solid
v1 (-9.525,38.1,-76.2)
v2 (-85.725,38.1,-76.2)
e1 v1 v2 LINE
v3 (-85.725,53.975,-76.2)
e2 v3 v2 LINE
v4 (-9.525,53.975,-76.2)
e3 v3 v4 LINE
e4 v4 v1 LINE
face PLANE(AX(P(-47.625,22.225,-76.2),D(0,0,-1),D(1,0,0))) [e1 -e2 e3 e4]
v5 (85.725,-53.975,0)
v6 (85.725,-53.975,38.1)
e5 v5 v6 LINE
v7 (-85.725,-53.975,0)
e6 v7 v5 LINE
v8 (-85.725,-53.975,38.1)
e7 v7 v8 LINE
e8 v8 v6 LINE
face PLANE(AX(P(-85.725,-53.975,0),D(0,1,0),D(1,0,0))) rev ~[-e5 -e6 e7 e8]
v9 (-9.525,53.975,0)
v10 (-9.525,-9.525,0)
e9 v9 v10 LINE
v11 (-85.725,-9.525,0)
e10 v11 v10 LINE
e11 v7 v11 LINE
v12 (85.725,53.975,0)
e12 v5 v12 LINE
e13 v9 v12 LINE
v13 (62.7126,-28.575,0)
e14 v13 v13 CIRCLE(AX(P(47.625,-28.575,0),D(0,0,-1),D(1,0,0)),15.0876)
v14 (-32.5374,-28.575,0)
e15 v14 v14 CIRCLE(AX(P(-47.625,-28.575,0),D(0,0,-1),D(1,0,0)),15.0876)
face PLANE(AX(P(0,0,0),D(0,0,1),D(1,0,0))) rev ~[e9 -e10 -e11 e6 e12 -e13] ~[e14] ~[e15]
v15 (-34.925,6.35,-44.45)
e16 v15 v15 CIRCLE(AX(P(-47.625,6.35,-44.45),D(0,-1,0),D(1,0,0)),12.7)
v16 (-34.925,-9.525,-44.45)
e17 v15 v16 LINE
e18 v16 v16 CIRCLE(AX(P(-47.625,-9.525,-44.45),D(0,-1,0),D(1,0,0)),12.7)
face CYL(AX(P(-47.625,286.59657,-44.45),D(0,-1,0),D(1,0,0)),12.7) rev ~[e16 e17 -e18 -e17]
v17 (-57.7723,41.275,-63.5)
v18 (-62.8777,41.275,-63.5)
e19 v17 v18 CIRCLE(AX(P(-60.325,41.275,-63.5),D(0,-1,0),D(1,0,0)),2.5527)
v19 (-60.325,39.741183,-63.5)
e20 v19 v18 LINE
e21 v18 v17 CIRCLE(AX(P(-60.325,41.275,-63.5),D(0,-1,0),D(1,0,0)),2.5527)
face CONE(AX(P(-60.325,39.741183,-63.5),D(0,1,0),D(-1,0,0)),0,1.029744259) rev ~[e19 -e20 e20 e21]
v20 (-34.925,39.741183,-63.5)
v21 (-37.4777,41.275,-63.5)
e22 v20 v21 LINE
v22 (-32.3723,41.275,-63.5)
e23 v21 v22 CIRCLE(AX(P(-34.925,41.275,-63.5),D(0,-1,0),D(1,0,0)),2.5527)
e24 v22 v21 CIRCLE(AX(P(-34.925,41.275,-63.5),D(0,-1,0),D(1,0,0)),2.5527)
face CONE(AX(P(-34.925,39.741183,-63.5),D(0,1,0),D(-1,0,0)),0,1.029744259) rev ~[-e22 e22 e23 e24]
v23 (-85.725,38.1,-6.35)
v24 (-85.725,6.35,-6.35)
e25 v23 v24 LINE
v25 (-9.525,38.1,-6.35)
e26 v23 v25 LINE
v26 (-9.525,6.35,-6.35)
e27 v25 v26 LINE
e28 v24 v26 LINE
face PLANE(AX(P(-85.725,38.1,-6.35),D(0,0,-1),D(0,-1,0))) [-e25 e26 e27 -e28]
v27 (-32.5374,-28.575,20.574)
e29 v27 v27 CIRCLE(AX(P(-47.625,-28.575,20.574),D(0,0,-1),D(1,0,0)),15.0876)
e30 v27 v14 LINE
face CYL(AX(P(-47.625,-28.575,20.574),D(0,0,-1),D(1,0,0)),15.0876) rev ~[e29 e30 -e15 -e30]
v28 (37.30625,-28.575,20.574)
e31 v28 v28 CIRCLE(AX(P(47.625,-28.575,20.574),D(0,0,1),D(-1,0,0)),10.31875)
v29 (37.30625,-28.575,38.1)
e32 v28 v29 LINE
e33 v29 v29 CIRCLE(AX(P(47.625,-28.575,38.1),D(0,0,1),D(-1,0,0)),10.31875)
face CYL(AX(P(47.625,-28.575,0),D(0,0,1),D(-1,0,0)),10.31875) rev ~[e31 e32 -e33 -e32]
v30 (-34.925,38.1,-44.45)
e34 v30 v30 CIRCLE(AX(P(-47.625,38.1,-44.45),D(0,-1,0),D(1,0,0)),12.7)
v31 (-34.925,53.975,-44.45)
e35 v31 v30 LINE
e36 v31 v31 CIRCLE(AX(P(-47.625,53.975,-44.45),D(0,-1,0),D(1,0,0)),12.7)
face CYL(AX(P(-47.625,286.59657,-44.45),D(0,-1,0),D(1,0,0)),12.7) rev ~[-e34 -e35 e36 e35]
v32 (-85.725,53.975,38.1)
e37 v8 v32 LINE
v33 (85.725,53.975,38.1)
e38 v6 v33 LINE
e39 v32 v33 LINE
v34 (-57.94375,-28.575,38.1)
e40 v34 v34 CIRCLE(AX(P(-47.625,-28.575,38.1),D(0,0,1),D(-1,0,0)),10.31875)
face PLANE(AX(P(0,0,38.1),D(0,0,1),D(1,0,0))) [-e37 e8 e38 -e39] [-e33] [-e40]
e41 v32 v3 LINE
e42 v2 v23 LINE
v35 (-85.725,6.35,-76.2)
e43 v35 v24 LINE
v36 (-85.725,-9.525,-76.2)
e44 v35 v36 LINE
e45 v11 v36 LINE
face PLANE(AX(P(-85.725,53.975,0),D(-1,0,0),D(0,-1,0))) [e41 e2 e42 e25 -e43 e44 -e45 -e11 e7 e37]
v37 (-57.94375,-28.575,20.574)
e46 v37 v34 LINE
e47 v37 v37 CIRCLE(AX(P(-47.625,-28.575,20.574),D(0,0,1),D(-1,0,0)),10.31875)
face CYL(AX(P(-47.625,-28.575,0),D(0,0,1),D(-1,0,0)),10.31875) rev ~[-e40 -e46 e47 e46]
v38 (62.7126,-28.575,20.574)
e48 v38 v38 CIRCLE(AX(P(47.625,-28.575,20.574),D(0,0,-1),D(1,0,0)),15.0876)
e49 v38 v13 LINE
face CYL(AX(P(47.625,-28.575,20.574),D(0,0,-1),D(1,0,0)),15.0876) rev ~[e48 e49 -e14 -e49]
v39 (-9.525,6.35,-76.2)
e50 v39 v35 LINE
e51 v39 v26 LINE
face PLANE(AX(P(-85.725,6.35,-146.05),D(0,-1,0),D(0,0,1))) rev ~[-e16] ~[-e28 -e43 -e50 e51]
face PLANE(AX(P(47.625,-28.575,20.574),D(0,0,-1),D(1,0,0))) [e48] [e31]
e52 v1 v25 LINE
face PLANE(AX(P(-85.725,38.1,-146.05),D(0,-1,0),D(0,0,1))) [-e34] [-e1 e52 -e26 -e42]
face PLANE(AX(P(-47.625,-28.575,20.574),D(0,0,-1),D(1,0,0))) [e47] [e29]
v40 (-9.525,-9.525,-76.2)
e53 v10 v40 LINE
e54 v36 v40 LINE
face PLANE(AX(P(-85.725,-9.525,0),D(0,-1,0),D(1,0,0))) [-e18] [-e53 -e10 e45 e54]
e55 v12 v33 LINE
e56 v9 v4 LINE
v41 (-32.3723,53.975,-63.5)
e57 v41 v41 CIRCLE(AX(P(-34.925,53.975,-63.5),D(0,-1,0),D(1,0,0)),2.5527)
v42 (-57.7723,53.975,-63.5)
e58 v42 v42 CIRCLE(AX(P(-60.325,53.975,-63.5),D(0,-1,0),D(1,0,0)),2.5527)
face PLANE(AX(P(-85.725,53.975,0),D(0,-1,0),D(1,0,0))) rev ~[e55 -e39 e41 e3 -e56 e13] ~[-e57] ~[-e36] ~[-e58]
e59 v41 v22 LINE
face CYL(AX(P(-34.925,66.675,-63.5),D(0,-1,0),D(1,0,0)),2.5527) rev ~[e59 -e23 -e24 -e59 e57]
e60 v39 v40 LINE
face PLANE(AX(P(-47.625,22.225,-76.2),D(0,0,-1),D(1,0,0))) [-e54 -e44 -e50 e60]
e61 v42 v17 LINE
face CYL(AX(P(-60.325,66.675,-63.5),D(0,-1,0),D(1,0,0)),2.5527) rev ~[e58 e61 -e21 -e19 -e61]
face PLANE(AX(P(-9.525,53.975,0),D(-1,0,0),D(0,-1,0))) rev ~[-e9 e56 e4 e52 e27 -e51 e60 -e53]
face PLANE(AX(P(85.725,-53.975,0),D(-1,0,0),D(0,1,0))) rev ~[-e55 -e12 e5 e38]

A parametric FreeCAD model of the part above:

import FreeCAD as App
import Part
import Sketcher
Q = App.Units.Quantity


def add_polygon(sketch, points):
    """Adds a closed chain of lines whose ends are joined by coincident constraints."""
    first, n = sketch.GeometryCount, len(points)
    for a, b in zip(points, points[1:] + points[:1]):
        sketch.addGeometry(Part.LineSegment(App.Vector(*a, 0), App.Vector(*b, 0)), False)
    for i in range(n):
        sketch.addConstraint(Sketcher.Constraint("Coincident", first + i, 2, first + (i + 1) % n, 1))

doc = App.newDocument("Part")
body = doc.addObject("PartDesign::Body", "Body")

sketch1 = body.newObject("Sketcher::SketchObject", "Sketch")
sketch1.AttachmentSupport = (doc.getObject("XY_Plane"), [""])
sketch1.MapMode = "FlatFace"
add_polygon(sketch1, [(-85.725, 53.975), (-85.725, -53.975), (85.725, -53.975), (85.725, 53.975)])
sketch1.addConstraint([
    Sketcher.Constraint("Vertical", 0),
    Sketcher.Constraint("Horizontal", 1),
    Sketcher.Constraint("Vertical", 2),
    Sketcher.Constraint("Horizontal", 3),
    Sketcher.Constraint("Symmetric", 0, 2, 2, 2, -1, 1),
    Sketcher.Constraint("DistanceX", 1, 1, 1, 2, Q("6.75 in")),
    Sketcher.Constraint("DistanceY", 0, 2, 0, 1, Q("4.25 in")),
])
pad1 = body.newObject("PartDesign::Pad", "Pad")
pad1.Profile = sketch1
pad1.Length = Q("1.5 in")

sketch2 = body.newObject("Sketcher::SketchObject", "Sketch001")
sketch2.AttachmentSupport = (doc.getObject("XY_Plane"), [""])
sketch2.MapMode = "FlatFace"
sketch2.addGeometry([
    Part.Circle(App.Vector(-47.625, -28.575, 0), App.Vector(0, 0, 1), 10.31875),
    Part.Circle(App.Vector(47.625, -28.575, 0), App.Vector(0, 0, 1), 10.31875),
], False)
sketch2.addConstraint([
    Sketcher.Constraint("Equal", 0, 1),
    Sketcher.Constraint("Symmetric", 0, 3, 1, 3, -2),
    Sketcher.Constraint("Diameter", 0, Q("0.8125 in")),
    Sketcher.Constraint("DistanceX", 0, 3, 1, 3, Q("3.75 in")),
    Sketcher.Constraint("DistanceY", 0, 3, -1, 1, Q("1.125 in")),
])
doc.recompute()
hole = body.newObject("PartDesign::Hole", "Hole")
hole.Profile = sketch2
hole.ThreadType = "None"
hole.Diameter = Q("0.8125 in")
hole.DepthType = "ThroughAll"
hole.HoleCutType = "Counterbore"
hole.HoleCutDiameter = Q("1.188 in")
hole.HoleCutDepth = Q("0.81 in")
hole.Reversed = True

sketch3 = body.newObject("Sketcher::SketchObject", "Sketch002")
sketch3.AttachmentSupport = (doc.getObject("XY_Plane"), [""])
sketch3.MapMode = "FlatFace"
add_polygon(sketch3, [(-85.725, -9.525), (-85.725, 53.975), (-9.525, 53.975), (-9.525, -9.525)])
sketch3.addConstraint([
    Sketcher.Constraint("Vertical", 0),
    Sketcher.Constraint("Horizontal", 1),
    Sketcher.Constraint("Vertical", 2),
    Sketcher.Constraint("Horizontal", 3),
    Sketcher.Constraint("DistanceX", 1, 1, 1, 2, Q("3 in")),
    Sketcher.Constraint("DistanceY", 0, 1, 0, 2, Q("2.5 in")),
    Sketcher.Constraint("DistanceX", 0, 2, -1, 1, Q("3.375 in")),
    Sketcher.Constraint("DistanceY", -1, 1, 0, 2, Q("2.125 in")),
])
pad2 = body.newObject("PartDesign::Pad", "Pad001")
pad2.Profile = sketch3
pad2.Length = Q("3 in")
pad2.Reversed = True

sketch4 = body.newObject("Sketcher::SketchObject", "Sketch003")
sketch4.AttachmentSupport = (doc.getObject("YZ_Plane"), [""])
sketch4.MapMode = "FlatFace"
sketch4.AttachmentOffset = App.Placement(App.Vector(0, 0, -3.375 * 25.4), App.Rotation())
add_polygon(sketch4, [(38.1, -6.35), (38.1, -146.05), (6.35, -146.05), (6.35, -6.35)])
sketch4.addConstraint([
    Sketcher.Constraint("Vertical", 0),
    Sketcher.Constraint("Horizontal", 1),
    Sketcher.Constraint("Vertical", 2),
    Sketcher.Constraint("Horizontal", 3),
    Sketcher.Constraint("DistanceY", 0, 2, 0, 1, Q("5.5 in")),
    Sketcher.Constraint("DistanceX", 1, 2, 1, 1, Q("1.25 in")),
    Sketcher.Constraint("DistanceX", -1, 1, 0, 2, Q("1.5 in")),
    Sketcher.Constraint("DistanceY", 0, 2, -1, 1, Q("5.75 in")),
])
pocket1 = body.newObject("PartDesign::Pocket", "Pocket")
pocket1.Profile = sketch4
pocket1.Type = "ThroughAll"
pocket1.Reversed = True

sketch5 = body.newObject("Sketcher::SketchObject", "Sketch004")
sketch5.AttachmentSupport = (doc.getObject("XZ_Plane"), [""])
sketch5.MapMode = "FlatFace"
sketch5.AttachmentOffset = App.Placement(App.Vector(0, 0, -2.125 * 25.4), App.Rotation())
sketch5.addGeometry(Part.Circle(App.Vector(-47.625, -44.45, 0), App.Vector(0, 0, 1), 12.7), False)
sketch5.addConstraint([
    Sketcher.Constraint("Diameter", 0, Q("1 in")),
    Sketcher.Constraint("DistanceY", 0, 3, -1, 1, Q("1.75 in")),
    Sketcher.Constraint("DistanceX", 0, 3, -1, 1, Q("1.875 in")),
])
doc.recompute()
hole2 = body.newObject("PartDesign::Hole", "Hole001")
hole2.Profile = sketch5
hole2.ThreadType = "None"
hole2.Diameter = Q("1 in")
hole2.DepthType = "ThroughAll"
hole2.Reversed = True

sketch6 = body.newObject("Sketcher::SketchObject", "Sketch005")
sketch6.AttachmentSupport = (doc.getObject("XZ_Plane"), [""])
sketch6.MapMode = "FlatFace"
sketch6.AttachmentOffset = App.Placement(App.Vector(0, 0, -2.125 * 25.4), App.Rotation())
sketch6.addGeometry([
    Part.Circle(App.Vector(-34.925, -63.5, 0), App.Vector(0, 0, 1), 2.5527),
    Part.Circle(App.Vector(-60.325, -63.5, 0), App.Vector(0, 0, 1), 2.5527),
], False)
sketch6.addConstraint([
    Sketcher.Constraint("Equal", 0, 1),
    Sketcher.Constraint("Horizontal", 0, 3, 1, 3),
    Sketcher.Constraint("Diameter", 0, Q("0.201 in")),
    Sketcher.Constraint("DistanceX", 1, 3, 0, 3, Q("1 in")),
    Sketcher.Constraint("DistanceY", 0, 3, -1, 1, Q("2.5 in")),
    Sketcher.Constraint("DistanceX", 0, 3, -1, 1, Q("1.375 in")),
])
doc.recompute()
hole3 = body.newObject("PartDesign::Hole", "Hole002")
hole3.Profile = sketch6
hole3.ThreadType = "None"
hole3.Diameter = Q("0.201 in")
hole3.DepthType = "Dimension"
hole3.Depth = Q("0.5 in")
hole3.DrillPoint = "Angled"
hole3.DrillPointAngle = 118
hole3.Reversed = True

doc.recompute()
